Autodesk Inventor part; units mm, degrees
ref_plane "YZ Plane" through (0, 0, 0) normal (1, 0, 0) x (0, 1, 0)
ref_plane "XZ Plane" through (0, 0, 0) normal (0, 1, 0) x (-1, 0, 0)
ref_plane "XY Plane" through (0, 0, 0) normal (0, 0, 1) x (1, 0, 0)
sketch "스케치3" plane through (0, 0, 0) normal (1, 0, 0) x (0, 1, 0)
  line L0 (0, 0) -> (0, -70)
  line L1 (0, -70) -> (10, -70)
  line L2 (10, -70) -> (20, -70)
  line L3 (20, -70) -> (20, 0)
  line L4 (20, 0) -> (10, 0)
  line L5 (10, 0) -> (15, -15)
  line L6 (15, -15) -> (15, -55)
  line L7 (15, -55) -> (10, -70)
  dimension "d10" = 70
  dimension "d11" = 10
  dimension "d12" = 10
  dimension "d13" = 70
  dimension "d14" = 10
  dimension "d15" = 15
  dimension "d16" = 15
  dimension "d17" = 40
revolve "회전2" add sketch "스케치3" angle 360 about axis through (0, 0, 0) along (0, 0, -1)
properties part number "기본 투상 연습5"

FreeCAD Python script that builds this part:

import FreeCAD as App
import Part
import Sketcher
Q = App.Units.Quantity

doc = App.newDocument("Part")
body = doc.addObject("PartDesign::Body", "Body")

# Sketch on YZ plane
sketch1 = body.newObject("Sketcher::SketchObject", "Sketch")
sketch1.AttachmentSupport = (doc.getObject("YZ_Plane"), [""])
sketch1.MapMode = "FlatFace"
sketch1.addGeometry([
    Part.LineSegment(App.Vector(15, -55, 0), App.Vector(10, -70, 0)),  # 0
    Part.LineSegment(App.Vector(10, -70, 0), App.Vector(20, -70, 0)),  # 1
    Part.LineSegment(App.Vector(20, -70, 0), App.Vector(20, 0, 0)),  # 2
    Part.LineSegment(App.Vector(20, 0, 0), App.Vector(10, 0, 0)),  # 3
    Part.LineSegment(App.Vector(10, 0, 0), App.Vector(15, -15, 0)),  # 4
    Part.LineSegment(App.Vector(15, -15, 0), App.Vector(15, -55, 0)),  # 5
], False)
sketch1.addConstraint([
    Sketcher.Constraint("Coincident", 0, 2, 1, 1),
    Sketcher.Constraint("Coincident", 1, 2, 2, 1),
    Sketcher.Constraint("Coincident", 2, 2, 3, 1),
    Sketcher.Constraint("Coincident", 3, 2, 4, 1),
    Sketcher.Constraint("Coincident", 4, 2, 5, 1),
    Sketcher.Constraint("Coincident", 5, 2, 0, 1),
    Sketcher.Constraint("Horizontal", 1),
    Sketcher.Constraint("Vertical", 2),
    Sketcher.Constraint("Horizontal", 3),
    Sketcher.Constraint("Vertical", 5),
    Sketcher.Constraint("PointOnObject", 2, 2, -1),
    Sketcher.Constraint("Vertical", 0, 2, 3, 2),
    Sketcher.Constraint("Equal", 0, 4),
    Sketcher.Constraint("DistanceX", 1, 1, 1, 2, Q("10 mm")),
    Sketcher.Constraint("DistanceY", 2, 1, 2, 2, Q("70 mm")),
    Sketcher.Constraint("DistanceY", 5, 2, 5, 1, Q("40 mm")),
    Sketcher.Constraint("DistanceX", -1, 1, 0, 2, Q("10 mm")),
    Sketcher.Constraint("DistanceX", -1, 1, 4, 2, Q("15 mm")),
])
revolution = body.newObject("PartDesign::Revolution", "Revolution")
revolution.Profile = sketch1
revolution.ReferenceAxis = (sketch1, ["V_Axis"])
revolution.Angle = 360

doc.recompute()
